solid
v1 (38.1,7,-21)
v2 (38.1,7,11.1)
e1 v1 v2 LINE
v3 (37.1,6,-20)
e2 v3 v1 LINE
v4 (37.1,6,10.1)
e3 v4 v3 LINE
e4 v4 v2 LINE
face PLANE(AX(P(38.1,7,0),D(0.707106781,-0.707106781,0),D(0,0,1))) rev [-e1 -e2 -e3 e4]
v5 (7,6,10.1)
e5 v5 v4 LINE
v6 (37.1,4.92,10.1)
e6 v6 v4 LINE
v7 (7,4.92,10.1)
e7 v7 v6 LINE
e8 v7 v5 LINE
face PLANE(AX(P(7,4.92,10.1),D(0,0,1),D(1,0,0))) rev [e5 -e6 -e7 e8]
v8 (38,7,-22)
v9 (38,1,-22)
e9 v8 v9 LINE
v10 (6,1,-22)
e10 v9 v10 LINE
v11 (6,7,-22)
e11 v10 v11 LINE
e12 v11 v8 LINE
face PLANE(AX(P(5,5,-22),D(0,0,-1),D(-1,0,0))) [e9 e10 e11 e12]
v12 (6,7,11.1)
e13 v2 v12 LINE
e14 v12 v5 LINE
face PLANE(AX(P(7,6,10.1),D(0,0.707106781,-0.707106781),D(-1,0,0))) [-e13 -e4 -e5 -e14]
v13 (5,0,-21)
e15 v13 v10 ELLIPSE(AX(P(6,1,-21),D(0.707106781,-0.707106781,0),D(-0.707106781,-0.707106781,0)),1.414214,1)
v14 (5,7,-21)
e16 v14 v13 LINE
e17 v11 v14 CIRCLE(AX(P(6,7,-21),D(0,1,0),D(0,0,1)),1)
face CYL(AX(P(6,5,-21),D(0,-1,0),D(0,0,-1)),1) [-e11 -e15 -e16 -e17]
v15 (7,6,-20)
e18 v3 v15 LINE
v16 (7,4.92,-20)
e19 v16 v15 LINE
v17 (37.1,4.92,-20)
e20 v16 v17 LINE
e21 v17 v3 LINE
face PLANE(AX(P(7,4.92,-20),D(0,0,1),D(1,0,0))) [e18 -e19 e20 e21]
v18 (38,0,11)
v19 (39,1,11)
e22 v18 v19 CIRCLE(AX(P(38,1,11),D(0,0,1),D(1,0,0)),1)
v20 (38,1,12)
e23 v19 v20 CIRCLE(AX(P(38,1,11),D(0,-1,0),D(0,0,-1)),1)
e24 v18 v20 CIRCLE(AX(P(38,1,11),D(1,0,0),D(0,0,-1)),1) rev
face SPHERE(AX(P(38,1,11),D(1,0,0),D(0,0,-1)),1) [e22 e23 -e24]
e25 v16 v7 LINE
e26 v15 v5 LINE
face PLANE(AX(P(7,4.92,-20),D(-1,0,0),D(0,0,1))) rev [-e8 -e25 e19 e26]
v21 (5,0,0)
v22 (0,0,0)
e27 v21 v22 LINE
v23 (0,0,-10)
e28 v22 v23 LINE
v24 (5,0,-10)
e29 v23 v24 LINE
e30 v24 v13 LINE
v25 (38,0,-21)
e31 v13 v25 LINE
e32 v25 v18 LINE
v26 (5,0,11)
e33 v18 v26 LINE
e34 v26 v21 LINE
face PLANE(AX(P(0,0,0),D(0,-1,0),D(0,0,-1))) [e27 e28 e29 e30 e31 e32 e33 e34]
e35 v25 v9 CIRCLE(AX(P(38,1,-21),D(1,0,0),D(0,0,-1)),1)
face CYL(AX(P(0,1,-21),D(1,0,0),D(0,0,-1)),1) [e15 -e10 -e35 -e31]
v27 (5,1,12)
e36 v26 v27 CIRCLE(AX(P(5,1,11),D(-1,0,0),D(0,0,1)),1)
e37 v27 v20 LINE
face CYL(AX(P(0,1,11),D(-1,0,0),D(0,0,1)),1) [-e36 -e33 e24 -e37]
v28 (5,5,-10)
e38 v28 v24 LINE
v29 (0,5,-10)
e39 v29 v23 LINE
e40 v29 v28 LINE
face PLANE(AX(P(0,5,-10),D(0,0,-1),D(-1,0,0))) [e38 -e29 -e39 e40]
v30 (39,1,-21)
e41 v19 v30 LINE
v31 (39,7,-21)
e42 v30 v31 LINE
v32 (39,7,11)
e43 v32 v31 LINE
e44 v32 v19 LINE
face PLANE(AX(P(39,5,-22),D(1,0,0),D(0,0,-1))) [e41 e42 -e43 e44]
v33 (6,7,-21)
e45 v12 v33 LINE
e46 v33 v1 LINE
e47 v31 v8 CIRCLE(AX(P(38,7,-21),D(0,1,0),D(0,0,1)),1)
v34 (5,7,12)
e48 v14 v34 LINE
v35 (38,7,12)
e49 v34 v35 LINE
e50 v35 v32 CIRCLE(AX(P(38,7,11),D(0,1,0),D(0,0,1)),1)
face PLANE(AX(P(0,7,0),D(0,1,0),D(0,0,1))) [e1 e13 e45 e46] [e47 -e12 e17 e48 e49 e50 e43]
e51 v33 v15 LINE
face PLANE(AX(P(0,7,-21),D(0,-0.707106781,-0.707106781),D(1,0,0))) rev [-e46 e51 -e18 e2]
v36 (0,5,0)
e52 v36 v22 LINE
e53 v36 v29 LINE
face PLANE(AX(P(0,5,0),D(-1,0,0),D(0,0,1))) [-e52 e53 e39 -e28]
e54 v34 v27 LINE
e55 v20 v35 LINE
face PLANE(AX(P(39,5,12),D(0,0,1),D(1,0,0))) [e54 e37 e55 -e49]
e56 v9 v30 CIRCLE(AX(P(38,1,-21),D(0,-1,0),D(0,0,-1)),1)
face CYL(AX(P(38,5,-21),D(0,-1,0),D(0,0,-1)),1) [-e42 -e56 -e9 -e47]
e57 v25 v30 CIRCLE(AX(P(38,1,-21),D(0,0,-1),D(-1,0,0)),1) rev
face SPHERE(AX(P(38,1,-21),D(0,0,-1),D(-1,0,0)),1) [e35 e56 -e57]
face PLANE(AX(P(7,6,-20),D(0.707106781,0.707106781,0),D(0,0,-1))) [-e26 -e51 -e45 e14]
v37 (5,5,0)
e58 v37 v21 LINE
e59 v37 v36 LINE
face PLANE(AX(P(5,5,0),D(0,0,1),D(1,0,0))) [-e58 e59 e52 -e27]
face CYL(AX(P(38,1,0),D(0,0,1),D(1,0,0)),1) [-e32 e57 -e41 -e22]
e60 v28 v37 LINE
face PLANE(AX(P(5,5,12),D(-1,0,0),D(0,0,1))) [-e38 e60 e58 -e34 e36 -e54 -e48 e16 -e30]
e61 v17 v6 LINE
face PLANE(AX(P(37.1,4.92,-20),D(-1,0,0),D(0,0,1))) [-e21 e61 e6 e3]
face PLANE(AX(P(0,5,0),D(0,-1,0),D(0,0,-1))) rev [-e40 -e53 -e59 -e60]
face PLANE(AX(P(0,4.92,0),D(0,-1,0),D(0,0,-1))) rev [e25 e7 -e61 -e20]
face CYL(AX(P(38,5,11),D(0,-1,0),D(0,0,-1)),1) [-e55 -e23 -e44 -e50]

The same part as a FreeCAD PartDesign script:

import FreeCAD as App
import Part
import Sketcher
from FreeCAD import Vector
Q = App.Units.Quantity


def edges_at(feature, points):
    """Names of the edges that pass closest to the given points."""
    edges = feature.Shape.Edges
    near = lambda p: min(range(len(edges)), key=lambda i: edges[i].distToShape(Part.Vertex(*p))[0])
    return sorted({f"Edge{near(p) + 1}" for p in points})


def add_polygon(sketch, points):
    """Adds a closed chain of lines whose ends are joined by coincident constraints."""
    first, n = sketch.GeometryCount, len(points)
    for a, b in zip(points, points[1:] + points[:1]):
        sketch.addGeometry(Part.LineSegment(App.Vector(*a, 0), App.Vector(*b, 0)), False)
    for i in range(n):
        sketch.addConstraint(Sketcher.Constraint("Coincident", first + i, 2, first + (i + 1) % n, 1))

doc = App.newDocument("Part")
body = doc.addObject("PartDesign::Body", "Body")

sketch1 = doc.addObject("Sketcher::SketchObject", "Sketch")
body.addObject(sketch1)
sketch1.AttachmentSupport = (doc.XZ_Plane, [""])
sketch1.MapMode = "FlatFace"
add_polygon(sketch1, [(5, -10), (0, -10), (0, 0), (5, 0), (5, 12), (39, 12), (39, -22), (5, -22)])
sketch1.addConstraint(Sketcher.Constraint("Horizontal", 0))
sketch1.addConstraint(Sketcher.Constraint("Vertical", 1))
sketch1.addConstraint(Sketcher.Constraint("Horizontal", 2))
sketch1.addConstraint(Sketcher.Constraint("Vertical", 3))
sketch1.addConstraint(Sketcher.Constraint("Horizontal", 4))
sketch1.addConstraint(Sketcher.Constraint("Vertical", 5))
sketch1.addConstraint(Sketcher.Constraint("Horizontal", 6))
sketch1.addConstraint(Sketcher.Constraint("Vertical", 7))
sketch1.addConstraint(Sketcher.Constraint("Coincident", 1, 2, -1, 1))
sketch1.addConstraint(Sketcher.Constraint("Vertical", 3, 2, 6, 2))
sketch1.addConstraint(Sketcher.Constraint("Equal", 6, 5))
sketch1.addConstraint(Sketcher.Constraint("Equal", 3, 7))
sketch1.addConstraint(Sketcher.Constraint("DistanceX", 0, 2, 0, 1, Q("5 mm")))
sketch1.addConstraint(Sketcher.Constraint("DistanceX", 4, 1, 4, 2, Q("34 mm")))
sketch1.addConstraint(Sketcher.Constraint("DistanceY", 1, 1, 1, 2, Q("10 mm")))
pad1 = doc.addObject("PartDesign::Pad", "Pad")
body.addObject(pad1)
pad1.Profile = sketch1
pad1.Length = 5
pad1.Reversed = True

sketch2 = doc.addObject("Sketcher::SketchObject", "Sketch001")
body.addObject(sketch2)
sketch2.AttachmentSupport = (doc.XZ_Plane, [""])
sketch2.MapMode = "FlatFace"
sketch2.AttachmentOffset = App.Placement(Vector(0, 0, -5), App.Rotation())
add_polygon(sketch2, [(5, -22), (5, 12), (39, 12), (39, -22)])
sketch2.addConstraint(Sketcher.Constraint("Vertical", 0))
sketch2.addConstraint(Sketcher.Constraint("Horizontal", 1))
sketch2.addConstraint(Sketcher.Constraint("Vertical", 2))
sketch2.addConstraint(Sketcher.Constraint("Horizontal", 3))
sketch2.addConstraint(Sketcher.Constraint("Equal", 3, 0))
sketch2.addConstraint(Sketcher.Constraint("DistanceX", 1, 1, 1, 2, Q("34 mm")))
sketch2.addConstraint(Sketcher.Constraint("DistanceX", -1, 1, 0, 2, Q("5 mm")))
sketch2.addConstraint(Sketcher.Constraint("DistanceY", -1, 1, 0, 2, Q("12 mm")))
pad2 = doc.addObject("PartDesign::Pad", "Pad001")
body.addObject(pad2)
pad2.Profile = sketch2
pad2.Length = 2
pad2.Reversed = True

sketch3 = doc.addObject("Sketcher::SketchObject", "Sketch002")
body.addObject(sketch3)
sketch3.AttachmentSupport = (doc.XZ_Plane, [""])
sketch3.MapMode = "FlatFace"
sketch3.AttachmentOffset = App.Placement(Vector(0, 0, -7), App.Rotation())
add_polygon(sketch3, [(7, -20), (7, 10), (37, 10), (37, -20)])
sketch3.addConstraint(Sketcher.Constraint("Vertical", 0))
sketch3.addConstraint(Sketcher.Constraint("Horizontal", 1))
sketch3.addConstraint(Sketcher.Constraint("Vertical", 2))
sketch3.addConstraint(Sketcher.Constraint("Horizontal", 3))
sketch3.addConstraint(Sketcher.Constraint("Equal", 3, 0))
sketch3.addConstraint(Sketcher.Constraint("DistanceX", 1, 1, 1, 2, Q("30.1 mm")))
sketch3.addConstraint(Sketcher.Constraint("DistanceX", -1, 1, 0, 2, Q("7 mm")))
sketch3.addConstraint(Sketcher.Constraint("DistanceY", 2, 2, -1, 1, Q("20 mm")))
pocket1 = doc.addObject("PartDesign::Pocket", "Pocket")
body.addObject(pocket1)
pocket1.Profile = sketch3
pocket1.Length = 2.08
pocket1.Reversed = True
doc.recompute()

chamfer = doc.addObject("PartDesign::Chamfer", "Chamfer")
body.addObject(chamfer)
chamfer.Base = (pocket1, edges_at(pocket1, [
    (22.05, 7, -20),
    (37.1, 7, -4.95),
    (22.05, 7, 10.1),
    (7, 7, -4.95),
]))
chamfer.Size = 1
doc.recompute()

fillet = doc.addObject("PartDesign::Fillet", "Fillet")
body.addObject(fillet)
fillet.Base = (chamfer, edges_at(chamfer, [
    (39, 3.5, 12),
    (39, 3.5, -22),
    (5, 3.5, -22),
    (22, 0, 12),
    (39, 0, -5),
    (22, 0, -22),
]))
fillet.Radius = 1

doc.recompute()
